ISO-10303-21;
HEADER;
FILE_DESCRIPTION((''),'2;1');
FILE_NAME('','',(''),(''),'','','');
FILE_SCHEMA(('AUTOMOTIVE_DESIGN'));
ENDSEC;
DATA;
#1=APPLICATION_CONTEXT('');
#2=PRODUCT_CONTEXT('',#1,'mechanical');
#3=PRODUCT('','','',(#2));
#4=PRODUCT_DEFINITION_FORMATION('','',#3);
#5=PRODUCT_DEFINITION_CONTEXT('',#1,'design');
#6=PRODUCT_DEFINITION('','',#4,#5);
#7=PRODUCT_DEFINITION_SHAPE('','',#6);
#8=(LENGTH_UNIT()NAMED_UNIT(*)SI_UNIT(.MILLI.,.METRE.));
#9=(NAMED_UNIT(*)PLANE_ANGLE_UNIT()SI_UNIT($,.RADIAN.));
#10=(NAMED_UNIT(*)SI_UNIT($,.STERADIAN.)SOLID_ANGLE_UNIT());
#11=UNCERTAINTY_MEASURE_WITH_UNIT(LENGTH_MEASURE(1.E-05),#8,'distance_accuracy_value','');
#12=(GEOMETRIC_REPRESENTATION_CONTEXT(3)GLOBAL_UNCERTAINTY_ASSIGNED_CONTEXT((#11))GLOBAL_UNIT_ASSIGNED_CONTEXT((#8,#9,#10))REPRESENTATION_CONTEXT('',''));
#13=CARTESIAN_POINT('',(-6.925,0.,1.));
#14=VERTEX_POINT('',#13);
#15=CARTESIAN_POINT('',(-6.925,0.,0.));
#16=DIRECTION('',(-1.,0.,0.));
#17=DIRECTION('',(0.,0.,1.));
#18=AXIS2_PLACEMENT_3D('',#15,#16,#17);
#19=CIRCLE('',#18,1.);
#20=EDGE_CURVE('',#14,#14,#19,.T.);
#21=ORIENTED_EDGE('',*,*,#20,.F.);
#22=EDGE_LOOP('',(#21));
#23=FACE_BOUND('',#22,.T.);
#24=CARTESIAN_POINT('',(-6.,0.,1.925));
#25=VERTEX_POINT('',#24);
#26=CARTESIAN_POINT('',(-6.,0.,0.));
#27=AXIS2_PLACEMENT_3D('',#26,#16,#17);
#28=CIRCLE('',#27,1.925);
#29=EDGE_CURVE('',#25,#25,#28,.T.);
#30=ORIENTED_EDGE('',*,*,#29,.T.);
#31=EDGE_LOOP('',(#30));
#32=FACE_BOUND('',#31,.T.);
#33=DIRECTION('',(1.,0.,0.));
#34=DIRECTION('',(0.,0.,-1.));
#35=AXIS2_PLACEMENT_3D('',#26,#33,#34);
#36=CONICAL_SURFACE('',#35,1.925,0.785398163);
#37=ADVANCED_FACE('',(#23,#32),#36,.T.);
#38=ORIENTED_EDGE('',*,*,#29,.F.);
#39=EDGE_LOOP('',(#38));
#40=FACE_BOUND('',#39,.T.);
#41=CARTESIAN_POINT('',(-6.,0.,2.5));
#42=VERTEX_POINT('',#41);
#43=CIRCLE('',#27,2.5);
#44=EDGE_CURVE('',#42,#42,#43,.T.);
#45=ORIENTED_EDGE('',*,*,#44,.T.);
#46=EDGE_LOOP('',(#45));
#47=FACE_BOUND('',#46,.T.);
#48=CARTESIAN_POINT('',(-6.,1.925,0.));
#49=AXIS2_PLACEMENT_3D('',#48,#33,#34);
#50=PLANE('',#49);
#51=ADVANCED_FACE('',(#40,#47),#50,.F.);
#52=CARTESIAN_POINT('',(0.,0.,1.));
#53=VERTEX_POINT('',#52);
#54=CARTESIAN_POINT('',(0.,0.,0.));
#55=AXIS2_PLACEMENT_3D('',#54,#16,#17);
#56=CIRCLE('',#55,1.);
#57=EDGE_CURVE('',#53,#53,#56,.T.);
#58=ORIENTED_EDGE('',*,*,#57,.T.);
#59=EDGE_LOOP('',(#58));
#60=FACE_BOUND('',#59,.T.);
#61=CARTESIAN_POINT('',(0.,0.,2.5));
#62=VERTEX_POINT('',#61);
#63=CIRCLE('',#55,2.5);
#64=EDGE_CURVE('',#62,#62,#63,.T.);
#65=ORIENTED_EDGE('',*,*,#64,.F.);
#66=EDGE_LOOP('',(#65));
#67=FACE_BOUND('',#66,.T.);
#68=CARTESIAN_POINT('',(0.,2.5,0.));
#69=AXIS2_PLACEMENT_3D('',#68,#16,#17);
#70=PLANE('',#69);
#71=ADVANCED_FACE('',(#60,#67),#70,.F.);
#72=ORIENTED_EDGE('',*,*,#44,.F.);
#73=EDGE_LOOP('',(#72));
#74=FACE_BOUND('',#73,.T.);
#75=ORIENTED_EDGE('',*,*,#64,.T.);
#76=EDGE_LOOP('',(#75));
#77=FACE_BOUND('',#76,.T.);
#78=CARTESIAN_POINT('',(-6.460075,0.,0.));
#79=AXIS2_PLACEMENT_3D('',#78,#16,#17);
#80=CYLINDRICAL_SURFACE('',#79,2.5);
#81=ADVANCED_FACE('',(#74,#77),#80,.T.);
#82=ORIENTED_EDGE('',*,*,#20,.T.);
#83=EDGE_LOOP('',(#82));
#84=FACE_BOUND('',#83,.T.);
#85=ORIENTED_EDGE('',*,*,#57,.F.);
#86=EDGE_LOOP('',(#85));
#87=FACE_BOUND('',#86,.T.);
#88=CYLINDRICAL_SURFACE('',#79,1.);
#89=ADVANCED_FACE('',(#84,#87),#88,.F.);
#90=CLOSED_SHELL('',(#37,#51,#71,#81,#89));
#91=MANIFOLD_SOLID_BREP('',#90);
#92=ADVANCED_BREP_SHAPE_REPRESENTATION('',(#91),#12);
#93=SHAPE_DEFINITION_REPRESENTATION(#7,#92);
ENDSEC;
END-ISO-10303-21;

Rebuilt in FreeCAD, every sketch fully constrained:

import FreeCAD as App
import Part
import Sketcher
Q = App.Units.Quantity


def add_polygon(sketch, points):
    """Adds a closed chain of lines whose ends are joined by coincident constraints."""
    first, n = sketch.GeometryCount, len(points)
    for a, b in zip(points, points[1:] + points[:1]):
        sketch.addGeometry(Part.LineSegment(App.Vector(*a, 0), App.Vector(*b, 0)), False)
    for i in range(n):
        sketch.addConstraint(Sketcher.Constraint("Coincident", first + i, 2, first + (i + 1) % n, 1))

doc = App.newDocument("Part")
params = doc.addObject("Spreadsheet::Sheet", "Params")
for row, (alias, value) in enumerate([
    ("sketch1_width", "6 mm"),
    ("sketch1_height", "1.5 mm"),
    ("revolution_angle", "360 deg"),
], start=1):
    params.set(f"A{row}", alias)
    params.set(f"B{row}", "=" + value)
    params.setAlias(f"B{row}", alias)

body = doc.addObject("PartDesign::Body", "Body")

# Sketch on XY plane
sketch1 = body.newObject("Sketcher::SketchObject", "Sketch")
sketch1.AttachmentSupport = (doc.getObject("XY_Plane"), [""])
sketch1.MapMode = "FlatFace"
add_polygon(sketch1, [(-6, 1.9), (-6.9, 1), (0, 1), (0, 2.5), (-6, 2.5)])  # lines 0-4
sketch1.addConstraint(Sketcher.Constraint("Horizontal", 1))
sketch1.addConstraint(Sketcher.Constraint("Vertical", 2))
sketch1.addConstraint(Sketcher.Constraint("Horizontal", 3))
sketch1.addConstraint(Sketcher.Constraint("Vertical", 4))
sketch1.addConstraint(Sketcher.Constraint("PointOnObject", 1, 2, -2))
sketch1.addConstraint(Sketcher.Constraint("DistanceX", 3, 2, 3, 1, Q("6 mm")))
sketch1.addConstraint(Sketcher.Constraint("Angle", 0, Q("-135 deg")))
sketch1.addConstraint(Sketcher.Constraint("DistanceY", 2, 1, 2, 2, Q("1.5 mm")))
sketch1.addConstraint(Sketcher.Constraint("DistanceY", -1, 1, 0, 2, Q("1 mm")))
sketch1.addConstraint(Sketcher.Constraint("DistanceX", 1, 1, 1, 2, Q("6.925 mm")))
sketch1.setExpression("Constraints[10]", "Params.sketch1_width")
sketch1.setExpression("Constraints[12]", "Params.sketch1_height")
revolution = body.newObject("PartDesign::Revolution", "Revolution")
revolution.Profile = sketch1
revolution.ReferenceAxis = (sketch1, ["H_Axis"])
revolution.setExpression("Angle", "Params.revolution_angle")

doc.recompute()
